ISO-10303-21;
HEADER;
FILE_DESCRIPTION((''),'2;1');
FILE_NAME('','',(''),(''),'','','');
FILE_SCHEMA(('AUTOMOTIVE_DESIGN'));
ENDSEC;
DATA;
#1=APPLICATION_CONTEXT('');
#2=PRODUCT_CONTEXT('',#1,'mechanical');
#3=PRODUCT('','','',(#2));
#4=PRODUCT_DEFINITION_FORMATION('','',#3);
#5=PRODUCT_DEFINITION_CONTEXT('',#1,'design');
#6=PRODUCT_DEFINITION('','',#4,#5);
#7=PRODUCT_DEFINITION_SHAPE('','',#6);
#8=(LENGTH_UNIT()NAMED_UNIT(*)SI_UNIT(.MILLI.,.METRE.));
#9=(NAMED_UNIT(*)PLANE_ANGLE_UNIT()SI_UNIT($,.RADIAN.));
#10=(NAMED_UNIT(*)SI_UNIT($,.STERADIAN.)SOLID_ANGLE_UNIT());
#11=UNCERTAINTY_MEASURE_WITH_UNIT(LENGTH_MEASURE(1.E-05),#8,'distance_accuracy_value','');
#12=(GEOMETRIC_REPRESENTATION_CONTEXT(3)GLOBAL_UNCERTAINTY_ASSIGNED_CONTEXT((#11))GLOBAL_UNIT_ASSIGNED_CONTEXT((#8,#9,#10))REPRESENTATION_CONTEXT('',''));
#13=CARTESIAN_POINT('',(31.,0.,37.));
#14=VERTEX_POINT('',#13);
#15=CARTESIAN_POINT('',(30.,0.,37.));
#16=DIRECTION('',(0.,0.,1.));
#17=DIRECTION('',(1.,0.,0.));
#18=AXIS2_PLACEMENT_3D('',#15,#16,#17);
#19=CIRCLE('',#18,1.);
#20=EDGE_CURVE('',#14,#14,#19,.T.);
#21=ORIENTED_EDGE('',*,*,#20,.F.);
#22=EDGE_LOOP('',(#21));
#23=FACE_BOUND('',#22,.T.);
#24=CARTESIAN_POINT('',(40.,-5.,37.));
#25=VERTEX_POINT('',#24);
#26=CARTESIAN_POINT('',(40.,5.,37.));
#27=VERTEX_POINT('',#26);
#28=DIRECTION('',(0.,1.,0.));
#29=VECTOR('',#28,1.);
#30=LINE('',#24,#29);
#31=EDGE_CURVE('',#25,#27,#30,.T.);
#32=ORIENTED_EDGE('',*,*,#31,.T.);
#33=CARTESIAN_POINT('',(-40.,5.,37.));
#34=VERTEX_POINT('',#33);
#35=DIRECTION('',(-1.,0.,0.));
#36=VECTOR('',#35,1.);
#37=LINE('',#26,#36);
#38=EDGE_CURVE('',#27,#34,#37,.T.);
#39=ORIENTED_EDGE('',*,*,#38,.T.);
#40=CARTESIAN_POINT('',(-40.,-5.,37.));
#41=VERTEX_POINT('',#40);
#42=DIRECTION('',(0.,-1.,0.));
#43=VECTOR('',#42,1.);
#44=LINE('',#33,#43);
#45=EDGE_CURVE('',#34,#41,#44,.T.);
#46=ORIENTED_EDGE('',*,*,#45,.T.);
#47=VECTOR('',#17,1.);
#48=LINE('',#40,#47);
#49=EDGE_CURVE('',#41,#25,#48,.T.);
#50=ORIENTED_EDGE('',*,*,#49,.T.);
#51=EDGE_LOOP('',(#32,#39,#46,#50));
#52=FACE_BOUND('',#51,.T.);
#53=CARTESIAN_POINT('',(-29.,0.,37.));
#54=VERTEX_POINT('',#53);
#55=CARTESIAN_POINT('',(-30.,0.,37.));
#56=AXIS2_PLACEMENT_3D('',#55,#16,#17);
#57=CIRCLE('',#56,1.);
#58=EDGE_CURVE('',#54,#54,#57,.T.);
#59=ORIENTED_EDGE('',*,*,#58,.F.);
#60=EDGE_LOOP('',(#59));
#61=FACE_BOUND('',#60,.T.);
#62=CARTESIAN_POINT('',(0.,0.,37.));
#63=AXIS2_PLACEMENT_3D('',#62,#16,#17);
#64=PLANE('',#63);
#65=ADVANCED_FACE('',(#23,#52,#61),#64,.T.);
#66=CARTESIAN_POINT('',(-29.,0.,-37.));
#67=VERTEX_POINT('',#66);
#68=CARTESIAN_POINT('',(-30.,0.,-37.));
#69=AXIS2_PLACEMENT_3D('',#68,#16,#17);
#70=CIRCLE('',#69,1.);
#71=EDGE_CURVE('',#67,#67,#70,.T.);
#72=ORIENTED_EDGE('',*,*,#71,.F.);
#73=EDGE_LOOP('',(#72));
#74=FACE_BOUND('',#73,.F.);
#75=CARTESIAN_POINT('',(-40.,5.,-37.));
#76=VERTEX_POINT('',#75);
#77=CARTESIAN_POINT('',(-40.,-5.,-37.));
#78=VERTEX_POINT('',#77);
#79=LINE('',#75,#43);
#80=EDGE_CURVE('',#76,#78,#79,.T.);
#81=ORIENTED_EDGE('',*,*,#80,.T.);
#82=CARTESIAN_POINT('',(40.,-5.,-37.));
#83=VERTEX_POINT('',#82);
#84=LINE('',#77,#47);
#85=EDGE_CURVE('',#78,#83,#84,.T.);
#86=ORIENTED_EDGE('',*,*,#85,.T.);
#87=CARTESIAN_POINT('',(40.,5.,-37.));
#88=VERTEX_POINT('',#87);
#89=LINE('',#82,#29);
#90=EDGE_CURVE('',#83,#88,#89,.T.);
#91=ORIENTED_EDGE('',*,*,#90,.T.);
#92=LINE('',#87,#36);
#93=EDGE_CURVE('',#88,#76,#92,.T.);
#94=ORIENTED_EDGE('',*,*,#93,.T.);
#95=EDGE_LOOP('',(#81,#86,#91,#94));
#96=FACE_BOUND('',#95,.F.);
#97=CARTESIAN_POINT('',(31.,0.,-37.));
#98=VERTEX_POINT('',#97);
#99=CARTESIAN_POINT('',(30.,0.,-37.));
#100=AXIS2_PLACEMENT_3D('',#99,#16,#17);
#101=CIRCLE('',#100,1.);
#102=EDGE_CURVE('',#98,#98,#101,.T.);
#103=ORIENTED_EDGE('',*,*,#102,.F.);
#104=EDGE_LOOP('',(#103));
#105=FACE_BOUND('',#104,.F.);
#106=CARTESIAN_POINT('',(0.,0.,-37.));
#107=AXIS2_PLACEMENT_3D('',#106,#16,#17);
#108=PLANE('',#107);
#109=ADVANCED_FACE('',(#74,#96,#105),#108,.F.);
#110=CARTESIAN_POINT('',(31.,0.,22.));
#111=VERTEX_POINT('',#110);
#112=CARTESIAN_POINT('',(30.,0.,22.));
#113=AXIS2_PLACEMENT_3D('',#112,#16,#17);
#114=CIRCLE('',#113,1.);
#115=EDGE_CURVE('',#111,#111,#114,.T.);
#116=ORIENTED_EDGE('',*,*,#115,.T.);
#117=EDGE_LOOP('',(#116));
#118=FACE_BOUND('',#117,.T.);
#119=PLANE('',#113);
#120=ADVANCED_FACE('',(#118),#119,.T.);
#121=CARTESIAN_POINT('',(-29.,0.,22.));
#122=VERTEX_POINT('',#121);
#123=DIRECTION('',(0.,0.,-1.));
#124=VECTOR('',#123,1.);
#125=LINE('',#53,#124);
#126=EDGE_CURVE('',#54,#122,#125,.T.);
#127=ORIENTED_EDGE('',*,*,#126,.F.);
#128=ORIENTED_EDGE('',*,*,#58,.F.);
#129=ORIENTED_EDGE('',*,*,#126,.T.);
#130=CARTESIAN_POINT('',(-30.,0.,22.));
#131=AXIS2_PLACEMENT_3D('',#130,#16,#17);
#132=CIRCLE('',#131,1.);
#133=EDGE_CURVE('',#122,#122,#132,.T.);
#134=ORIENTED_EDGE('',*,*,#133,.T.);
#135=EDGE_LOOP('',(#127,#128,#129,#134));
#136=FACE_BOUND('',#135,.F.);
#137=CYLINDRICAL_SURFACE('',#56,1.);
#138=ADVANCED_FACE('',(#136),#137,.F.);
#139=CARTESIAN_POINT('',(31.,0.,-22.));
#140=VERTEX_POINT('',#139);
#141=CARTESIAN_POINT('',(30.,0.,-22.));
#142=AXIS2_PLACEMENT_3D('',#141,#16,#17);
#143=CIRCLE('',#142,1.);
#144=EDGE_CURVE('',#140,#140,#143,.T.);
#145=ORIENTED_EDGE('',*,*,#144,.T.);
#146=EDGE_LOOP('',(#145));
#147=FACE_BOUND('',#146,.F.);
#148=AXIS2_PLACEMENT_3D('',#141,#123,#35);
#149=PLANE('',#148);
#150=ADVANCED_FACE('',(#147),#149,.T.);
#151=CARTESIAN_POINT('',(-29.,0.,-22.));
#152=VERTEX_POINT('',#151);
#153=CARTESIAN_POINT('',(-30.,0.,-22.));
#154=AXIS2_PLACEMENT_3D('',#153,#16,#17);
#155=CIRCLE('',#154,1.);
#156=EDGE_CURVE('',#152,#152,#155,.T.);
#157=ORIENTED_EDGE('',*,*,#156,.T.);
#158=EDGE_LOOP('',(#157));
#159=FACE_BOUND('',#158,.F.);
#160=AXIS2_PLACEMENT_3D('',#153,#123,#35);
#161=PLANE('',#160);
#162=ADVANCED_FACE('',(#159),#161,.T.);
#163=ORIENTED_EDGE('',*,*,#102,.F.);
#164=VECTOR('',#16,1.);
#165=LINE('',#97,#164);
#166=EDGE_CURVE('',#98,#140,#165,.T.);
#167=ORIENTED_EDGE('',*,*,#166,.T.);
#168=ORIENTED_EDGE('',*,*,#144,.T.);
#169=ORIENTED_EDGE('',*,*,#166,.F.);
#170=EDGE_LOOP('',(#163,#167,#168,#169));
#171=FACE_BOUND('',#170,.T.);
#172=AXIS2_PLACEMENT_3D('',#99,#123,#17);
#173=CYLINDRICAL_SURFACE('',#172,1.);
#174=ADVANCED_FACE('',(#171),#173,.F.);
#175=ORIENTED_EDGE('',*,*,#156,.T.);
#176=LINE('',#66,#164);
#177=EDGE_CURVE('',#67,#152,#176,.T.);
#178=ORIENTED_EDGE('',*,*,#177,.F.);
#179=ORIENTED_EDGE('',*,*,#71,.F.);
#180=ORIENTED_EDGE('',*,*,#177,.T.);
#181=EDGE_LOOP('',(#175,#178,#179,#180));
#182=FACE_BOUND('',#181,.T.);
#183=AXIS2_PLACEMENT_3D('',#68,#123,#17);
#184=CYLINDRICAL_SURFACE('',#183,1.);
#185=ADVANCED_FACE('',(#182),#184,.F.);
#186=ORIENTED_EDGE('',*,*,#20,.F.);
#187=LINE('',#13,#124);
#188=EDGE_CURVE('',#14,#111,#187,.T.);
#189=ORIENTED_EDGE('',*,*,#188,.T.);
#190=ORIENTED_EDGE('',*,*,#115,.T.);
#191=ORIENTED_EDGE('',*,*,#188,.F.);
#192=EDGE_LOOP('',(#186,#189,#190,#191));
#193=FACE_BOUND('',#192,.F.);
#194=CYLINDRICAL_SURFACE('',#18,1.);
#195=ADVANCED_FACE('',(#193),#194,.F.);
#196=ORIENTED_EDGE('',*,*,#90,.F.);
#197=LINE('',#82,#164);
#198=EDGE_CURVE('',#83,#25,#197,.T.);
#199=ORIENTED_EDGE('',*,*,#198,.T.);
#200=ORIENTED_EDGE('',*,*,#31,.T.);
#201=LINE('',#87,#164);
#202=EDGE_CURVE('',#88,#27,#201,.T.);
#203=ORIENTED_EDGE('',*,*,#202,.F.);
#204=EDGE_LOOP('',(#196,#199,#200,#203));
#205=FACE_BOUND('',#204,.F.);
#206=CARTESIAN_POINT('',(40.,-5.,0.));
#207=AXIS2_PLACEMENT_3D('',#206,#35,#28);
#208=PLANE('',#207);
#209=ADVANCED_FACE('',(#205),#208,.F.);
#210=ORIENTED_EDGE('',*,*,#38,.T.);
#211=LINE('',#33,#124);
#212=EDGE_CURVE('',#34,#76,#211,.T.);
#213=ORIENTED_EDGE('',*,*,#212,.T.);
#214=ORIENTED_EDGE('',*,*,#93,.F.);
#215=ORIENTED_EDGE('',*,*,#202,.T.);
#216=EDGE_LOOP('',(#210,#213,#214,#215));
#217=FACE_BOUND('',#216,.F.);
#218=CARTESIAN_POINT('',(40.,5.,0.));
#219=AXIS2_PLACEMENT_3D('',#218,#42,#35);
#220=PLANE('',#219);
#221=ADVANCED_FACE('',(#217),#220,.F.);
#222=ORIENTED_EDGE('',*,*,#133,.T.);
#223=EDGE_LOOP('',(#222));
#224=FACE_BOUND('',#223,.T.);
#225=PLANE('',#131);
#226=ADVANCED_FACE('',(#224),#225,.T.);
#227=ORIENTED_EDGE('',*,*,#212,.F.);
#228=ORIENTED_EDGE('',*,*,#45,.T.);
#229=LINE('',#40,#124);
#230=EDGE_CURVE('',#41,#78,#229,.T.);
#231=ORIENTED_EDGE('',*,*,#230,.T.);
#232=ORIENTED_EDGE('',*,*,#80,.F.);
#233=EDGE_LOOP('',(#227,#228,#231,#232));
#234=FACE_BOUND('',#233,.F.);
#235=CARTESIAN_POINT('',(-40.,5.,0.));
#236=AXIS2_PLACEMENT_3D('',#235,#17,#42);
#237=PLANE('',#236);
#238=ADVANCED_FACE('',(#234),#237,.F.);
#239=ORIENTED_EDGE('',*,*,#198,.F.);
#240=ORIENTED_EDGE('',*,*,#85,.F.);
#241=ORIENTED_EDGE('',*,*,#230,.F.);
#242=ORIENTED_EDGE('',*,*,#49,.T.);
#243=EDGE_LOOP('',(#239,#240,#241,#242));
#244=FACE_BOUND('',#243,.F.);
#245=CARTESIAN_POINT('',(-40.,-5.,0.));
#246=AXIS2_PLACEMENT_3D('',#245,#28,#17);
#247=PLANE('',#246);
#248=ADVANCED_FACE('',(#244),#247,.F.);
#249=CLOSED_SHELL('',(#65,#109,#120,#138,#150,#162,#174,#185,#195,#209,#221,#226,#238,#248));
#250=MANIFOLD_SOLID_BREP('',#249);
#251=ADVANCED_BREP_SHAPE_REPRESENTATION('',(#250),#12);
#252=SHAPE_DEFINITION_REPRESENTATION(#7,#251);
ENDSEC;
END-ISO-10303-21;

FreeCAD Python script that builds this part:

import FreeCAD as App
import Part
import Sketcher
from FreeCAD import Vector

doc = App.newDocument("Part")
body = doc.addObject("PartDesign::Body", "Body")

# Sketch on XY plane
sketch1 = body.newObject("Sketcher::SketchObject", "Sketch")
sketch1.AttachmentSupport = (doc.getObject("XY_Plane"), [""])
sketch1.MapMode = "FlatFace"
sketch1.addGeometry([
    Part.LineSegment(Vector(-40, 5, 0), Vector(-40, -5, 0)),
    Part.LineSegment(Vector(-40, -5, 0), Vector(40, -5, 0)),
    Part.LineSegment(Vector(40, -5, 0), Vector(40, 5, 0)),
    Part.LineSegment(Vector(40, 5, 0), Vector(-40, 5, 0)),
], False)
sketch1.addConstraint([
    Sketcher.Constraint("Coincident", 0, 2, 1, 1),
    Sketcher.Constraint("Coincident", 1, 2, 2, 1),
    Sketcher.Constraint("Coincident", 2, 2, 3, 1),
    Sketcher.Constraint("Coincident", 3, 2, 0, 1),
    Sketcher.Constraint("Vertical", 0),
    Sketcher.Constraint("Horizontal", 1),
    Sketcher.Constraint("Vertical", 2),
    Sketcher.Constraint("Horizontal", 3),
    Sketcher.Constraint("Symmetric", 0, 2, 2, 2, -1, 1),
    Sketcher.Constraint("DistanceX", 0, 2, -1, 1, 40.0),
    Sketcher.Constraint("DistanceY", 0, 2, 0, 1, 10.0),
])
pad1 = body.newObject("PartDesign::Pad", "Pad")
pad1.Profile = sketch1
pad1.Length = 74
pad1.Midplane = True

# Sketch on XY plane
sketch2 = body.newObject("Sketcher::SketchObject", "Sketch001")
sketch2.AttachmentSupport = (doc.getObject("XY_Plane"), [""])
sketch2.MapMode = "FlatFace"
sketch2.AttachmentOffset = App.Placement(Vector(0, 0, 37), App.Rotation())
sketch2.addGeometry([
    Part.Circle(Vector(-30, 0, 0), Vector(0, 0, 1), 1),
    Part.Circle(Vector(30, 0, 0), Vector(0, 0, 1), 1),
], False)
sketch2.addConstraint([
    Sketcher.Constraint("Equal", 0, 1),
    Sketcher.Constraint("Symmetric", 0, 3, 1, 3, -1, 1),
    Sketcher.Constraint("PointOnObject", 0, 3, -1),
    Sketcher.Constraint("Diameter", 0, 2.0),
    Sketcher.Constraint("DistanceX", 0, 3, -1, 1, 30.0),
])
pocket1 = body.newObject("PartDesign::Pocket", "Pocket")
pocket1.Profile = sketch2
pocket1.Length = 15
doc.recompute()

mirrored = body.newObject("PartDesign::Mirrored", "Mirrored")
mirrored.Originals = [pocket1]
mirrored.MirrorPlane = (doc.getObject("XY_Plane"), [""])
body.Tip = mirrored

doc.recompute()
